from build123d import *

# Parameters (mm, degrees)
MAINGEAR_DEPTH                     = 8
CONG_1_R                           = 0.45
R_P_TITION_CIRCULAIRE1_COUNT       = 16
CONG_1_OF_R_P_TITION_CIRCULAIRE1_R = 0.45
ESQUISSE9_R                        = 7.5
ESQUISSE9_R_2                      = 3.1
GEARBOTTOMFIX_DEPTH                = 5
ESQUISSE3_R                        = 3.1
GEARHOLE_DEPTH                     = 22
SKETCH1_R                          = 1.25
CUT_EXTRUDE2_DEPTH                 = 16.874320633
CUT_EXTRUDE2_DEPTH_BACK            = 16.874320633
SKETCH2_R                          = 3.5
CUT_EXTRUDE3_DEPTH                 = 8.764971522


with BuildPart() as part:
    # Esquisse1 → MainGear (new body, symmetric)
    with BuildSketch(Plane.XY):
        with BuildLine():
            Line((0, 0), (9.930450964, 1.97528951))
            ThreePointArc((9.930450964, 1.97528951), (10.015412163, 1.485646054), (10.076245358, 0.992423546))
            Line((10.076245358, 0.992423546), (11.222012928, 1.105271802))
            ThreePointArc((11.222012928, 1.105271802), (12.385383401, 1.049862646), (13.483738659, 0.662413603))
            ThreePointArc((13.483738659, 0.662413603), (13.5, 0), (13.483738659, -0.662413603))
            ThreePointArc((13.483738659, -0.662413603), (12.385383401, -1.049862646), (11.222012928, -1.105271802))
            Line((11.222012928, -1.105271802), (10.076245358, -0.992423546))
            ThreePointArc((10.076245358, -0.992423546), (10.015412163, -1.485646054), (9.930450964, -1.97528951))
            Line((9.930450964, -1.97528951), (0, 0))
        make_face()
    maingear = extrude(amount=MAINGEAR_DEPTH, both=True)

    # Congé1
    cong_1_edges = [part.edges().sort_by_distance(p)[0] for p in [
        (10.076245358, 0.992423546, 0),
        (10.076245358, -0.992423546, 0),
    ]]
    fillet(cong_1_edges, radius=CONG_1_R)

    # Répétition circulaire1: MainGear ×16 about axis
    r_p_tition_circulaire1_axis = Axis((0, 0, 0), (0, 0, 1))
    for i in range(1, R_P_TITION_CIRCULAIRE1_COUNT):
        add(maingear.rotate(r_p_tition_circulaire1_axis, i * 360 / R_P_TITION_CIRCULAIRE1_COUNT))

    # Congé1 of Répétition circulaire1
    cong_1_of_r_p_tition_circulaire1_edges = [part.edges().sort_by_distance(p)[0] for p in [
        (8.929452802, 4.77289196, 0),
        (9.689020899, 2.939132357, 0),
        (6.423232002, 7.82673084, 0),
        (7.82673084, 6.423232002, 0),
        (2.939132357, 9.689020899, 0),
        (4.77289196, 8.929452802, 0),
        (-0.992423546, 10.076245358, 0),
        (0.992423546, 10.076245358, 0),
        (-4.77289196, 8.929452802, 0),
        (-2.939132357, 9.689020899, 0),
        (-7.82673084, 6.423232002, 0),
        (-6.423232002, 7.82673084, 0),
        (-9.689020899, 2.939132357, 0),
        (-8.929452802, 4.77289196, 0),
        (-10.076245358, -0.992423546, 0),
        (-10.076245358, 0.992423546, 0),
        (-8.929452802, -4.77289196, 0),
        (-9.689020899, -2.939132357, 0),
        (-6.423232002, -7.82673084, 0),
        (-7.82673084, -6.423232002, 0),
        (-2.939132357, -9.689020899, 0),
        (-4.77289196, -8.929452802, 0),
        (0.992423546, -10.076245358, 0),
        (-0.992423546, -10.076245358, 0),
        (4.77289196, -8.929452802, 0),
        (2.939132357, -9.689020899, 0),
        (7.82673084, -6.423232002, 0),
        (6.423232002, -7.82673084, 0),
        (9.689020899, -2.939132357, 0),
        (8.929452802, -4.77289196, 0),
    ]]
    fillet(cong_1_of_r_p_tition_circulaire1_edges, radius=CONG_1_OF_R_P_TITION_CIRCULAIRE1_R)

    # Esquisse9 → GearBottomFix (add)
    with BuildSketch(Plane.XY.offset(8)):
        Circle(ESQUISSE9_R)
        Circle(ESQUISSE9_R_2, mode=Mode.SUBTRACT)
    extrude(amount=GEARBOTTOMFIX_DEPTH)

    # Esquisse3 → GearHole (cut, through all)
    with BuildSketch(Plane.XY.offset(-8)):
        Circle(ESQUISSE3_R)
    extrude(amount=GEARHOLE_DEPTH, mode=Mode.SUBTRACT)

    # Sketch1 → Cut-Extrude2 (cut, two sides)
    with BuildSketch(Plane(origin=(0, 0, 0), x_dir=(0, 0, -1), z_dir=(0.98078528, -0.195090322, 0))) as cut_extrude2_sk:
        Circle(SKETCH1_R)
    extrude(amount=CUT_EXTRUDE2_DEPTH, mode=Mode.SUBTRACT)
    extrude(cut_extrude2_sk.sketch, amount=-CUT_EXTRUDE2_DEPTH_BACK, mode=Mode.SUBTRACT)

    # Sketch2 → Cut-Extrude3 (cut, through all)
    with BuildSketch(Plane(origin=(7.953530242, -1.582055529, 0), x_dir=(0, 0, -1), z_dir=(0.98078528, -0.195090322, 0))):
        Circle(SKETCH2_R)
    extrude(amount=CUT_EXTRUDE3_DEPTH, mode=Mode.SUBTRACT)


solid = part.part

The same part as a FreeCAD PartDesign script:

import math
import FreeCAD as App
import Part
import Sketcher
Q = App.Units.Quantity


def edges_at(feature, points):
    """Names of the edges that pass closest to the given points."""
    edges = feature.Shape.Edges
    near = lambda p: min(range(len(edges)), key=lambda i: edges[i].distToShape(Part.Vertex(*p))[0])
    return sorted({f"Edge{near(p) + 1}" for p in points})

doc = App.newDocument("Part")
params = doc.addObject("Spreadsheet::Sheet", "Params")
for row, (alias, value) in enumerate([
    ("sketch1_radius", "13.5 mm"),
    ("pad1_length", "16 mm"),
    ("fillet_radius", "0.45 mm"),
    ("fillet2_radius", "0.45 mm"),
    ("sketch2_diameter", "15 mm"),
    ("sketch2_diameter2", "6.2 mm"),
    ("pad2_length", "5 mm"),
    ("sketch3_diameter", "6.2 mm"),
    ("sketch4_diameter", "2.5 mm"),
    ("sketch5_diameter", "7 mm"),
], start=1):
    params.set(f"A{row}", alias)
    params.set(f"B{row}", "=" + value)
    params.setAlias(f"B{row}", alias)

body = doc.addObject("PartDesign::Body", "Body")

# Sketch on XY plane
sketch1 = body.newObject("Sketcher::SketchObject", "Sketch")
sketch1.AttachmentSupport = (doc.getObject("XY_Plane"), [""])
sketch1.MapMode = "FlatFace"
sketch1.addGeometry(Part.LineSegment(App.Vector(9.9, 2, 0), App.Vector(0, 0, 0)), False)
sketch1.addGeometry(Part.LineSegment(App.Vector(0, 0, 0), App.Vector(9.9, -2, 0)), False)
sketch1.addGeometry(Part.ArcOfCircle(Part.Circle(App.Vector(0, 0, 0), App.Vector(0, 0, 1), 10.1), math.radians(-11.25), math.radians(-5.63)), False)
sketch1.addGeometry(Part.LineSegment(App.Vector(10.1, -1, 0), App.Vector(11.2, -1.1, 0)), False)
sketch1.addGeometry(Part.ArcOfCircle(Part.Circle(App.Vector(11.6, 2.9, 0), App.Vector(0, 0, 1), 4), math.radians(-96), math.radians(-62)), False)
sketch1.addGeometry(Part.ArcOfCircle(Part.Circle(App.Vector(0, 0, 0), App.Vector(0, 0, 1), 13.5), math.radians(-2.81), math.radians(2.81)), False)
sketch1.addGeometry(Part.ArcOfCircle(Part.Circle(App.Vector(11.6, -2.9, 0), App.Vector(0, 0, 1), 4), math.radians(62), math.radians(96)), False)
sketch1.addGeometry(Part.LineSegment(App.Vector(11.2, 1.1, 0), App.Vector(10.1, 1, 0)), False)
sketch1.addGeometry(Part.ArcOfCircle(Part.Circle(App.Vector(0, 0, 0), App.Vector(0, 0, 1), 10.1), math.radians(5.63), math.radians(11.25)), False)
sketch1.addConstraint(Sketcher.Constraint("Coincident", 0, 2, 1, 1))
sketch1.addConstraint(Sketcher.Constraint("Coincident", 1, 2, 2, 1))
sketch1.addConstraint(Sketcher.Constraint("Coincident", 2, 2, 3, 1))
sketch1.addConstraint(Sketcher.Constraint("Tangent", 3, 2, 4, 1))
sketch1.addConstraint(Sketcher.Constraint("Coincident", 4, 2, 5, 1))
sketch1.addConstraint(Sketcher.Constraint("Coincident", 5, 2, 6, 1))
sketch1.addConstraint(Sketcher.Constraint("Tangent", 6, 2, 7, 1))
sketch1.addConstraint(Sketcher.Constraint("Coincident", 7, 2, 8, 1))
sketch1.addConstraint(Sketcher.Constraint("Coincident", 8, 2, 0, 1))
sketch1.addConstraint(Sketcher.Constraint("Coincident", 2, 3, -1, 1))
sketch1.addConstraint(Sketcher.Constraint("Coincident", 5, 3, -1, 1))
sketch1.addConstraint(Sketcher.Constraint("Coincident", 8, 3, -1, 1))
sketch1.addConstraint(Sketcher.Constraint("Coincident", 0, 2, -1, 1))
sketch1.addConstraint(Sketcher.Constraint("Equal", 4, 6))
sketch1.addConstraint(Sketcher.Constraint("Equal", 2, 8))
sketch1.addConstraint(Sketcher.Constraint("Symmetric", 4, 3, 6, 3, -1))
sketch1.addConstraint(Sketcher.Constraint("Vertical", 3, 2, 6, 2))
sketch1.addConstraint(Sketcher.Constraint("Vertical", 1, 2, 8, 2))
sketch1.addConstraint(Sketcher.Constraint("Radius", 5, 13.5))
sketch1.addConstraint(Sketcher.Constraint("Radius", 2, 10.125))
sketch1.addConstraint(Sketcher.Constraint("Angle", 0, Q("-168.75 deg")))
sketch1.addConstraint(Sketcher.Constraint("Radius", 4, 4.009222))
sketch1.addConstraint(Sketcher.Constraint("Distance", 3, 1.151311))
sketch1.addConstraint(Sketcher.Constraint("DistanceY", 3, 2, -1, 1, 1.105272))
sketch1.addConstraint(Sketcher.Constraint("DistanceX", -1, 1, 4, 2, 13.483739))
sketch1.setExpression("Constraints[18]", "Params.sketch1_radius")
pad1 = body.newObject("PartDesign::Pad", "Pad")
pad1.Profile = sketch1
pad1.setExpression("Length", "Params.pad1_length")
pad1.Midplane = True
doc.recompute()

fillet = body.newObject("PartDesign::Fillet", "Fillet")
fillet.Base = (pad1, edges_at(pad1, [(10.076, 0.992, 0), (10.076, -0.992, 0)]))
fillet.setExpression("Radius", "Params.fillet_radius")
doc.recompute()

polarpattern = body.newObject("PartDesign::PolarPattern", "PolarPattern")
polarpattern.Originals = [pad1]
polarpattern.Axis = (doc.getObject("Z_Axis"), [""])
polarpattern.Angle = 360
polarpattern.Occurrences = 16
body.Tip = polarpattern
doc.recompute()

fillet2 = body.newObject("PartDesign::Fillet", "Fillet001")
fillet2.Base = (polarpattern, edges_at(polarpattern, [
    (8.929, 4.773, 0),
    (9.689, 2.939, 0),
    (6.423, 7.827, 0),
    (7.827, 6.423, 0),
    (2.939, 9.689, 0),
    (4.773, 8.929, 0),
    (-0.992, 10.076, 0),
    (0.992, 10.076, 0),
    (-4.773, 8.929, 0),
    (-2.939, 9.689, 0),
    (-7.827, 6.423, 0),
    (-6.423, 7.827, 0),
    (-9.689, 2.939, 0),
    (-8.929, 4.773, 0),
    (-10.076, -0.992, 0),
    (-10.076, 0.992, 0),
    (-8.929, -4.773, 0),
    (-9.689, -2.939, 0),
    (-6.423, -7.827, 0),
    (-7.827, -6.423, 0),
    (-2.939, -9.689, 0),
    (-4.773, -8.929, 0),
    (0.992, -10.076, 0),
    (-0.992, -10.076, 0),
    (4.773, -8.929, 0),
    (2.939, -9.689, 0),
    (7.827, -6.423, 0),
    (6.423, -7.827, 0),
    (9.689, -2.939, 0),
    (8.929, -4.773, 0),
]))
fillet2.setExpression("Radius", "Params.fillet2_radius")

# Sketch on XY plane
sketch2 = body.newObject("Sketcher::SketchObject", "Sketch001")
sketch2.AttachmentSupport = (doc.getObject("XY_Plane"), [""])
sketch2.MapMode = "FlatFace"
sketch2.AttachmentOffset = App.Placement(App.Vector(0, 0, 8), App.Rotation())
sketch2.addGeometry(Part.Circle(App.Vector(0, 0, 0), App.Vector(0, 0, 1), 7.5), False)
sketch2.addGeometry(Part.Circle(App.Vector(0, 0, 0), App.Vector(0, 0, 1), 3.1), False)
sketch2.addConstraint(Sketcher.Constraint("Coincident", 0, 3, -1, 1))
sketch2.addConstraint(Sketcher.Constraint("Coincident", 1, 3, -1, 1))
sketch2.addConstraint(Sketcher.Constraint("Diameter", 0, 15.0))
sketch2.addConstraint(Sketcher.Constraint("Diameter", 1, 6.2))
sketch2.setExpression("Constraints[2]", "Params.sketch2_diameter")
sketch2.setExpression("Constraints[3]", "Params.sketch2_diameter2")
pad2 = body.newObject("PartDesign::Pad", "Pad001")
pad2.Profile = sketch2
pad2.setExpression("Length", "Params.pad2_length")

# Sketch on XY plane
sketch3 = body.newObject("Sketcher::SketchObject", "Sketch002")
sketch3.AttachmentSupport = (doc.getObject("XY_Plane"), [""])
sketch3.MapMode = "FlatFace"
sketch3.AttachmentOffset = App.Placement(App.Vector(0, 0, -8), App.Rotation())
sketch3.addGeometry(Part.Circle(App.Vector(0, 0, 0), App.Vector(0, 0, 1), 3.1), False)
sketch3.addConstraint(Sketcher.Constraint("Coincident", 0, 3, -1, 1))
sketch3.addConstraint(Sketcher.Constraint("Diameter", 0, 6.2))
sketch3.setExpression("Constraints[1]", "Params.sketch3_diameter")
pocket1 = body.newObject("PartDesign::Pocket", "Pocket")
pocket1.Profile = sketch3
pocket1.Type = "ThroughAll"
pocket1.Reversed = True

# Sketch on an angled plane
sketch4 = body.newObject("Sketcher::SketchObject", "Sketch003")
sketch4.Placement = App.Placement(App.Vector(0, 0, 0), App.Rotation(App.Vector(0, 0, -1), App.Vector(0.195090322, 0.98078528, 0), App.Vector(0.98078528, -0.195090322, 0), "ZXY"))
sketch4.addGeometry(Part.Circle(App.Vector(0, 0, 0), App.Vector(0, 0, 1), 1.2), False)
sketch4.addConstraint(Sketcher.Constraint("Coincident", 0, 3, -1, 1))
sketch4.addConstraint(Sketcher.Constraint("Diameter", 0, 2.5))
sketch4.setExpression("Constraints[1]", "Params.sketch4_diameter")
pocket2 = body.newObject("PartDesign::Pocket", "Pocket001")
pocket2.Profile = sketch4
pocket2.Type = "ThroughAll"
pocket2.Midplane = True

# Sketch on an angled plane
sketch5 = body.newObject("Sketcher::SketchObject", "Sketch004")
sketch5.Placement = App.Placement(App.Vector(7.95353, -1.582056, 0), App.Rotation(App.Vector(0, 0, -1), App.Vector(0.195090322, 0.98078528, 0), App.Vector(0.98078528, -0.195090322, 0), "ZXY"))
sketch5.addGeometry(Part.Circle(App.Vector(0, 0, 0), App.Vector(0, 0, 1), 3.5), False)
sketch5.addConstraint(Sketcher.Constraint("Coincident", 0, 3, -1, 1))
sketch5.addConstraint(Sketcher.Constraint("Diameter", 0, 7.0))
sketch5.setExpression("Constraints[1]", "Params.sketch5_diameter")
pocket3 = body.newObject("PartDesign::Pocket", "Pocket002")
pocket3.Profile = sketch5
pocket3.Type = "ThroughAll"
pocket3.Reversed = True

doc.recompute()
